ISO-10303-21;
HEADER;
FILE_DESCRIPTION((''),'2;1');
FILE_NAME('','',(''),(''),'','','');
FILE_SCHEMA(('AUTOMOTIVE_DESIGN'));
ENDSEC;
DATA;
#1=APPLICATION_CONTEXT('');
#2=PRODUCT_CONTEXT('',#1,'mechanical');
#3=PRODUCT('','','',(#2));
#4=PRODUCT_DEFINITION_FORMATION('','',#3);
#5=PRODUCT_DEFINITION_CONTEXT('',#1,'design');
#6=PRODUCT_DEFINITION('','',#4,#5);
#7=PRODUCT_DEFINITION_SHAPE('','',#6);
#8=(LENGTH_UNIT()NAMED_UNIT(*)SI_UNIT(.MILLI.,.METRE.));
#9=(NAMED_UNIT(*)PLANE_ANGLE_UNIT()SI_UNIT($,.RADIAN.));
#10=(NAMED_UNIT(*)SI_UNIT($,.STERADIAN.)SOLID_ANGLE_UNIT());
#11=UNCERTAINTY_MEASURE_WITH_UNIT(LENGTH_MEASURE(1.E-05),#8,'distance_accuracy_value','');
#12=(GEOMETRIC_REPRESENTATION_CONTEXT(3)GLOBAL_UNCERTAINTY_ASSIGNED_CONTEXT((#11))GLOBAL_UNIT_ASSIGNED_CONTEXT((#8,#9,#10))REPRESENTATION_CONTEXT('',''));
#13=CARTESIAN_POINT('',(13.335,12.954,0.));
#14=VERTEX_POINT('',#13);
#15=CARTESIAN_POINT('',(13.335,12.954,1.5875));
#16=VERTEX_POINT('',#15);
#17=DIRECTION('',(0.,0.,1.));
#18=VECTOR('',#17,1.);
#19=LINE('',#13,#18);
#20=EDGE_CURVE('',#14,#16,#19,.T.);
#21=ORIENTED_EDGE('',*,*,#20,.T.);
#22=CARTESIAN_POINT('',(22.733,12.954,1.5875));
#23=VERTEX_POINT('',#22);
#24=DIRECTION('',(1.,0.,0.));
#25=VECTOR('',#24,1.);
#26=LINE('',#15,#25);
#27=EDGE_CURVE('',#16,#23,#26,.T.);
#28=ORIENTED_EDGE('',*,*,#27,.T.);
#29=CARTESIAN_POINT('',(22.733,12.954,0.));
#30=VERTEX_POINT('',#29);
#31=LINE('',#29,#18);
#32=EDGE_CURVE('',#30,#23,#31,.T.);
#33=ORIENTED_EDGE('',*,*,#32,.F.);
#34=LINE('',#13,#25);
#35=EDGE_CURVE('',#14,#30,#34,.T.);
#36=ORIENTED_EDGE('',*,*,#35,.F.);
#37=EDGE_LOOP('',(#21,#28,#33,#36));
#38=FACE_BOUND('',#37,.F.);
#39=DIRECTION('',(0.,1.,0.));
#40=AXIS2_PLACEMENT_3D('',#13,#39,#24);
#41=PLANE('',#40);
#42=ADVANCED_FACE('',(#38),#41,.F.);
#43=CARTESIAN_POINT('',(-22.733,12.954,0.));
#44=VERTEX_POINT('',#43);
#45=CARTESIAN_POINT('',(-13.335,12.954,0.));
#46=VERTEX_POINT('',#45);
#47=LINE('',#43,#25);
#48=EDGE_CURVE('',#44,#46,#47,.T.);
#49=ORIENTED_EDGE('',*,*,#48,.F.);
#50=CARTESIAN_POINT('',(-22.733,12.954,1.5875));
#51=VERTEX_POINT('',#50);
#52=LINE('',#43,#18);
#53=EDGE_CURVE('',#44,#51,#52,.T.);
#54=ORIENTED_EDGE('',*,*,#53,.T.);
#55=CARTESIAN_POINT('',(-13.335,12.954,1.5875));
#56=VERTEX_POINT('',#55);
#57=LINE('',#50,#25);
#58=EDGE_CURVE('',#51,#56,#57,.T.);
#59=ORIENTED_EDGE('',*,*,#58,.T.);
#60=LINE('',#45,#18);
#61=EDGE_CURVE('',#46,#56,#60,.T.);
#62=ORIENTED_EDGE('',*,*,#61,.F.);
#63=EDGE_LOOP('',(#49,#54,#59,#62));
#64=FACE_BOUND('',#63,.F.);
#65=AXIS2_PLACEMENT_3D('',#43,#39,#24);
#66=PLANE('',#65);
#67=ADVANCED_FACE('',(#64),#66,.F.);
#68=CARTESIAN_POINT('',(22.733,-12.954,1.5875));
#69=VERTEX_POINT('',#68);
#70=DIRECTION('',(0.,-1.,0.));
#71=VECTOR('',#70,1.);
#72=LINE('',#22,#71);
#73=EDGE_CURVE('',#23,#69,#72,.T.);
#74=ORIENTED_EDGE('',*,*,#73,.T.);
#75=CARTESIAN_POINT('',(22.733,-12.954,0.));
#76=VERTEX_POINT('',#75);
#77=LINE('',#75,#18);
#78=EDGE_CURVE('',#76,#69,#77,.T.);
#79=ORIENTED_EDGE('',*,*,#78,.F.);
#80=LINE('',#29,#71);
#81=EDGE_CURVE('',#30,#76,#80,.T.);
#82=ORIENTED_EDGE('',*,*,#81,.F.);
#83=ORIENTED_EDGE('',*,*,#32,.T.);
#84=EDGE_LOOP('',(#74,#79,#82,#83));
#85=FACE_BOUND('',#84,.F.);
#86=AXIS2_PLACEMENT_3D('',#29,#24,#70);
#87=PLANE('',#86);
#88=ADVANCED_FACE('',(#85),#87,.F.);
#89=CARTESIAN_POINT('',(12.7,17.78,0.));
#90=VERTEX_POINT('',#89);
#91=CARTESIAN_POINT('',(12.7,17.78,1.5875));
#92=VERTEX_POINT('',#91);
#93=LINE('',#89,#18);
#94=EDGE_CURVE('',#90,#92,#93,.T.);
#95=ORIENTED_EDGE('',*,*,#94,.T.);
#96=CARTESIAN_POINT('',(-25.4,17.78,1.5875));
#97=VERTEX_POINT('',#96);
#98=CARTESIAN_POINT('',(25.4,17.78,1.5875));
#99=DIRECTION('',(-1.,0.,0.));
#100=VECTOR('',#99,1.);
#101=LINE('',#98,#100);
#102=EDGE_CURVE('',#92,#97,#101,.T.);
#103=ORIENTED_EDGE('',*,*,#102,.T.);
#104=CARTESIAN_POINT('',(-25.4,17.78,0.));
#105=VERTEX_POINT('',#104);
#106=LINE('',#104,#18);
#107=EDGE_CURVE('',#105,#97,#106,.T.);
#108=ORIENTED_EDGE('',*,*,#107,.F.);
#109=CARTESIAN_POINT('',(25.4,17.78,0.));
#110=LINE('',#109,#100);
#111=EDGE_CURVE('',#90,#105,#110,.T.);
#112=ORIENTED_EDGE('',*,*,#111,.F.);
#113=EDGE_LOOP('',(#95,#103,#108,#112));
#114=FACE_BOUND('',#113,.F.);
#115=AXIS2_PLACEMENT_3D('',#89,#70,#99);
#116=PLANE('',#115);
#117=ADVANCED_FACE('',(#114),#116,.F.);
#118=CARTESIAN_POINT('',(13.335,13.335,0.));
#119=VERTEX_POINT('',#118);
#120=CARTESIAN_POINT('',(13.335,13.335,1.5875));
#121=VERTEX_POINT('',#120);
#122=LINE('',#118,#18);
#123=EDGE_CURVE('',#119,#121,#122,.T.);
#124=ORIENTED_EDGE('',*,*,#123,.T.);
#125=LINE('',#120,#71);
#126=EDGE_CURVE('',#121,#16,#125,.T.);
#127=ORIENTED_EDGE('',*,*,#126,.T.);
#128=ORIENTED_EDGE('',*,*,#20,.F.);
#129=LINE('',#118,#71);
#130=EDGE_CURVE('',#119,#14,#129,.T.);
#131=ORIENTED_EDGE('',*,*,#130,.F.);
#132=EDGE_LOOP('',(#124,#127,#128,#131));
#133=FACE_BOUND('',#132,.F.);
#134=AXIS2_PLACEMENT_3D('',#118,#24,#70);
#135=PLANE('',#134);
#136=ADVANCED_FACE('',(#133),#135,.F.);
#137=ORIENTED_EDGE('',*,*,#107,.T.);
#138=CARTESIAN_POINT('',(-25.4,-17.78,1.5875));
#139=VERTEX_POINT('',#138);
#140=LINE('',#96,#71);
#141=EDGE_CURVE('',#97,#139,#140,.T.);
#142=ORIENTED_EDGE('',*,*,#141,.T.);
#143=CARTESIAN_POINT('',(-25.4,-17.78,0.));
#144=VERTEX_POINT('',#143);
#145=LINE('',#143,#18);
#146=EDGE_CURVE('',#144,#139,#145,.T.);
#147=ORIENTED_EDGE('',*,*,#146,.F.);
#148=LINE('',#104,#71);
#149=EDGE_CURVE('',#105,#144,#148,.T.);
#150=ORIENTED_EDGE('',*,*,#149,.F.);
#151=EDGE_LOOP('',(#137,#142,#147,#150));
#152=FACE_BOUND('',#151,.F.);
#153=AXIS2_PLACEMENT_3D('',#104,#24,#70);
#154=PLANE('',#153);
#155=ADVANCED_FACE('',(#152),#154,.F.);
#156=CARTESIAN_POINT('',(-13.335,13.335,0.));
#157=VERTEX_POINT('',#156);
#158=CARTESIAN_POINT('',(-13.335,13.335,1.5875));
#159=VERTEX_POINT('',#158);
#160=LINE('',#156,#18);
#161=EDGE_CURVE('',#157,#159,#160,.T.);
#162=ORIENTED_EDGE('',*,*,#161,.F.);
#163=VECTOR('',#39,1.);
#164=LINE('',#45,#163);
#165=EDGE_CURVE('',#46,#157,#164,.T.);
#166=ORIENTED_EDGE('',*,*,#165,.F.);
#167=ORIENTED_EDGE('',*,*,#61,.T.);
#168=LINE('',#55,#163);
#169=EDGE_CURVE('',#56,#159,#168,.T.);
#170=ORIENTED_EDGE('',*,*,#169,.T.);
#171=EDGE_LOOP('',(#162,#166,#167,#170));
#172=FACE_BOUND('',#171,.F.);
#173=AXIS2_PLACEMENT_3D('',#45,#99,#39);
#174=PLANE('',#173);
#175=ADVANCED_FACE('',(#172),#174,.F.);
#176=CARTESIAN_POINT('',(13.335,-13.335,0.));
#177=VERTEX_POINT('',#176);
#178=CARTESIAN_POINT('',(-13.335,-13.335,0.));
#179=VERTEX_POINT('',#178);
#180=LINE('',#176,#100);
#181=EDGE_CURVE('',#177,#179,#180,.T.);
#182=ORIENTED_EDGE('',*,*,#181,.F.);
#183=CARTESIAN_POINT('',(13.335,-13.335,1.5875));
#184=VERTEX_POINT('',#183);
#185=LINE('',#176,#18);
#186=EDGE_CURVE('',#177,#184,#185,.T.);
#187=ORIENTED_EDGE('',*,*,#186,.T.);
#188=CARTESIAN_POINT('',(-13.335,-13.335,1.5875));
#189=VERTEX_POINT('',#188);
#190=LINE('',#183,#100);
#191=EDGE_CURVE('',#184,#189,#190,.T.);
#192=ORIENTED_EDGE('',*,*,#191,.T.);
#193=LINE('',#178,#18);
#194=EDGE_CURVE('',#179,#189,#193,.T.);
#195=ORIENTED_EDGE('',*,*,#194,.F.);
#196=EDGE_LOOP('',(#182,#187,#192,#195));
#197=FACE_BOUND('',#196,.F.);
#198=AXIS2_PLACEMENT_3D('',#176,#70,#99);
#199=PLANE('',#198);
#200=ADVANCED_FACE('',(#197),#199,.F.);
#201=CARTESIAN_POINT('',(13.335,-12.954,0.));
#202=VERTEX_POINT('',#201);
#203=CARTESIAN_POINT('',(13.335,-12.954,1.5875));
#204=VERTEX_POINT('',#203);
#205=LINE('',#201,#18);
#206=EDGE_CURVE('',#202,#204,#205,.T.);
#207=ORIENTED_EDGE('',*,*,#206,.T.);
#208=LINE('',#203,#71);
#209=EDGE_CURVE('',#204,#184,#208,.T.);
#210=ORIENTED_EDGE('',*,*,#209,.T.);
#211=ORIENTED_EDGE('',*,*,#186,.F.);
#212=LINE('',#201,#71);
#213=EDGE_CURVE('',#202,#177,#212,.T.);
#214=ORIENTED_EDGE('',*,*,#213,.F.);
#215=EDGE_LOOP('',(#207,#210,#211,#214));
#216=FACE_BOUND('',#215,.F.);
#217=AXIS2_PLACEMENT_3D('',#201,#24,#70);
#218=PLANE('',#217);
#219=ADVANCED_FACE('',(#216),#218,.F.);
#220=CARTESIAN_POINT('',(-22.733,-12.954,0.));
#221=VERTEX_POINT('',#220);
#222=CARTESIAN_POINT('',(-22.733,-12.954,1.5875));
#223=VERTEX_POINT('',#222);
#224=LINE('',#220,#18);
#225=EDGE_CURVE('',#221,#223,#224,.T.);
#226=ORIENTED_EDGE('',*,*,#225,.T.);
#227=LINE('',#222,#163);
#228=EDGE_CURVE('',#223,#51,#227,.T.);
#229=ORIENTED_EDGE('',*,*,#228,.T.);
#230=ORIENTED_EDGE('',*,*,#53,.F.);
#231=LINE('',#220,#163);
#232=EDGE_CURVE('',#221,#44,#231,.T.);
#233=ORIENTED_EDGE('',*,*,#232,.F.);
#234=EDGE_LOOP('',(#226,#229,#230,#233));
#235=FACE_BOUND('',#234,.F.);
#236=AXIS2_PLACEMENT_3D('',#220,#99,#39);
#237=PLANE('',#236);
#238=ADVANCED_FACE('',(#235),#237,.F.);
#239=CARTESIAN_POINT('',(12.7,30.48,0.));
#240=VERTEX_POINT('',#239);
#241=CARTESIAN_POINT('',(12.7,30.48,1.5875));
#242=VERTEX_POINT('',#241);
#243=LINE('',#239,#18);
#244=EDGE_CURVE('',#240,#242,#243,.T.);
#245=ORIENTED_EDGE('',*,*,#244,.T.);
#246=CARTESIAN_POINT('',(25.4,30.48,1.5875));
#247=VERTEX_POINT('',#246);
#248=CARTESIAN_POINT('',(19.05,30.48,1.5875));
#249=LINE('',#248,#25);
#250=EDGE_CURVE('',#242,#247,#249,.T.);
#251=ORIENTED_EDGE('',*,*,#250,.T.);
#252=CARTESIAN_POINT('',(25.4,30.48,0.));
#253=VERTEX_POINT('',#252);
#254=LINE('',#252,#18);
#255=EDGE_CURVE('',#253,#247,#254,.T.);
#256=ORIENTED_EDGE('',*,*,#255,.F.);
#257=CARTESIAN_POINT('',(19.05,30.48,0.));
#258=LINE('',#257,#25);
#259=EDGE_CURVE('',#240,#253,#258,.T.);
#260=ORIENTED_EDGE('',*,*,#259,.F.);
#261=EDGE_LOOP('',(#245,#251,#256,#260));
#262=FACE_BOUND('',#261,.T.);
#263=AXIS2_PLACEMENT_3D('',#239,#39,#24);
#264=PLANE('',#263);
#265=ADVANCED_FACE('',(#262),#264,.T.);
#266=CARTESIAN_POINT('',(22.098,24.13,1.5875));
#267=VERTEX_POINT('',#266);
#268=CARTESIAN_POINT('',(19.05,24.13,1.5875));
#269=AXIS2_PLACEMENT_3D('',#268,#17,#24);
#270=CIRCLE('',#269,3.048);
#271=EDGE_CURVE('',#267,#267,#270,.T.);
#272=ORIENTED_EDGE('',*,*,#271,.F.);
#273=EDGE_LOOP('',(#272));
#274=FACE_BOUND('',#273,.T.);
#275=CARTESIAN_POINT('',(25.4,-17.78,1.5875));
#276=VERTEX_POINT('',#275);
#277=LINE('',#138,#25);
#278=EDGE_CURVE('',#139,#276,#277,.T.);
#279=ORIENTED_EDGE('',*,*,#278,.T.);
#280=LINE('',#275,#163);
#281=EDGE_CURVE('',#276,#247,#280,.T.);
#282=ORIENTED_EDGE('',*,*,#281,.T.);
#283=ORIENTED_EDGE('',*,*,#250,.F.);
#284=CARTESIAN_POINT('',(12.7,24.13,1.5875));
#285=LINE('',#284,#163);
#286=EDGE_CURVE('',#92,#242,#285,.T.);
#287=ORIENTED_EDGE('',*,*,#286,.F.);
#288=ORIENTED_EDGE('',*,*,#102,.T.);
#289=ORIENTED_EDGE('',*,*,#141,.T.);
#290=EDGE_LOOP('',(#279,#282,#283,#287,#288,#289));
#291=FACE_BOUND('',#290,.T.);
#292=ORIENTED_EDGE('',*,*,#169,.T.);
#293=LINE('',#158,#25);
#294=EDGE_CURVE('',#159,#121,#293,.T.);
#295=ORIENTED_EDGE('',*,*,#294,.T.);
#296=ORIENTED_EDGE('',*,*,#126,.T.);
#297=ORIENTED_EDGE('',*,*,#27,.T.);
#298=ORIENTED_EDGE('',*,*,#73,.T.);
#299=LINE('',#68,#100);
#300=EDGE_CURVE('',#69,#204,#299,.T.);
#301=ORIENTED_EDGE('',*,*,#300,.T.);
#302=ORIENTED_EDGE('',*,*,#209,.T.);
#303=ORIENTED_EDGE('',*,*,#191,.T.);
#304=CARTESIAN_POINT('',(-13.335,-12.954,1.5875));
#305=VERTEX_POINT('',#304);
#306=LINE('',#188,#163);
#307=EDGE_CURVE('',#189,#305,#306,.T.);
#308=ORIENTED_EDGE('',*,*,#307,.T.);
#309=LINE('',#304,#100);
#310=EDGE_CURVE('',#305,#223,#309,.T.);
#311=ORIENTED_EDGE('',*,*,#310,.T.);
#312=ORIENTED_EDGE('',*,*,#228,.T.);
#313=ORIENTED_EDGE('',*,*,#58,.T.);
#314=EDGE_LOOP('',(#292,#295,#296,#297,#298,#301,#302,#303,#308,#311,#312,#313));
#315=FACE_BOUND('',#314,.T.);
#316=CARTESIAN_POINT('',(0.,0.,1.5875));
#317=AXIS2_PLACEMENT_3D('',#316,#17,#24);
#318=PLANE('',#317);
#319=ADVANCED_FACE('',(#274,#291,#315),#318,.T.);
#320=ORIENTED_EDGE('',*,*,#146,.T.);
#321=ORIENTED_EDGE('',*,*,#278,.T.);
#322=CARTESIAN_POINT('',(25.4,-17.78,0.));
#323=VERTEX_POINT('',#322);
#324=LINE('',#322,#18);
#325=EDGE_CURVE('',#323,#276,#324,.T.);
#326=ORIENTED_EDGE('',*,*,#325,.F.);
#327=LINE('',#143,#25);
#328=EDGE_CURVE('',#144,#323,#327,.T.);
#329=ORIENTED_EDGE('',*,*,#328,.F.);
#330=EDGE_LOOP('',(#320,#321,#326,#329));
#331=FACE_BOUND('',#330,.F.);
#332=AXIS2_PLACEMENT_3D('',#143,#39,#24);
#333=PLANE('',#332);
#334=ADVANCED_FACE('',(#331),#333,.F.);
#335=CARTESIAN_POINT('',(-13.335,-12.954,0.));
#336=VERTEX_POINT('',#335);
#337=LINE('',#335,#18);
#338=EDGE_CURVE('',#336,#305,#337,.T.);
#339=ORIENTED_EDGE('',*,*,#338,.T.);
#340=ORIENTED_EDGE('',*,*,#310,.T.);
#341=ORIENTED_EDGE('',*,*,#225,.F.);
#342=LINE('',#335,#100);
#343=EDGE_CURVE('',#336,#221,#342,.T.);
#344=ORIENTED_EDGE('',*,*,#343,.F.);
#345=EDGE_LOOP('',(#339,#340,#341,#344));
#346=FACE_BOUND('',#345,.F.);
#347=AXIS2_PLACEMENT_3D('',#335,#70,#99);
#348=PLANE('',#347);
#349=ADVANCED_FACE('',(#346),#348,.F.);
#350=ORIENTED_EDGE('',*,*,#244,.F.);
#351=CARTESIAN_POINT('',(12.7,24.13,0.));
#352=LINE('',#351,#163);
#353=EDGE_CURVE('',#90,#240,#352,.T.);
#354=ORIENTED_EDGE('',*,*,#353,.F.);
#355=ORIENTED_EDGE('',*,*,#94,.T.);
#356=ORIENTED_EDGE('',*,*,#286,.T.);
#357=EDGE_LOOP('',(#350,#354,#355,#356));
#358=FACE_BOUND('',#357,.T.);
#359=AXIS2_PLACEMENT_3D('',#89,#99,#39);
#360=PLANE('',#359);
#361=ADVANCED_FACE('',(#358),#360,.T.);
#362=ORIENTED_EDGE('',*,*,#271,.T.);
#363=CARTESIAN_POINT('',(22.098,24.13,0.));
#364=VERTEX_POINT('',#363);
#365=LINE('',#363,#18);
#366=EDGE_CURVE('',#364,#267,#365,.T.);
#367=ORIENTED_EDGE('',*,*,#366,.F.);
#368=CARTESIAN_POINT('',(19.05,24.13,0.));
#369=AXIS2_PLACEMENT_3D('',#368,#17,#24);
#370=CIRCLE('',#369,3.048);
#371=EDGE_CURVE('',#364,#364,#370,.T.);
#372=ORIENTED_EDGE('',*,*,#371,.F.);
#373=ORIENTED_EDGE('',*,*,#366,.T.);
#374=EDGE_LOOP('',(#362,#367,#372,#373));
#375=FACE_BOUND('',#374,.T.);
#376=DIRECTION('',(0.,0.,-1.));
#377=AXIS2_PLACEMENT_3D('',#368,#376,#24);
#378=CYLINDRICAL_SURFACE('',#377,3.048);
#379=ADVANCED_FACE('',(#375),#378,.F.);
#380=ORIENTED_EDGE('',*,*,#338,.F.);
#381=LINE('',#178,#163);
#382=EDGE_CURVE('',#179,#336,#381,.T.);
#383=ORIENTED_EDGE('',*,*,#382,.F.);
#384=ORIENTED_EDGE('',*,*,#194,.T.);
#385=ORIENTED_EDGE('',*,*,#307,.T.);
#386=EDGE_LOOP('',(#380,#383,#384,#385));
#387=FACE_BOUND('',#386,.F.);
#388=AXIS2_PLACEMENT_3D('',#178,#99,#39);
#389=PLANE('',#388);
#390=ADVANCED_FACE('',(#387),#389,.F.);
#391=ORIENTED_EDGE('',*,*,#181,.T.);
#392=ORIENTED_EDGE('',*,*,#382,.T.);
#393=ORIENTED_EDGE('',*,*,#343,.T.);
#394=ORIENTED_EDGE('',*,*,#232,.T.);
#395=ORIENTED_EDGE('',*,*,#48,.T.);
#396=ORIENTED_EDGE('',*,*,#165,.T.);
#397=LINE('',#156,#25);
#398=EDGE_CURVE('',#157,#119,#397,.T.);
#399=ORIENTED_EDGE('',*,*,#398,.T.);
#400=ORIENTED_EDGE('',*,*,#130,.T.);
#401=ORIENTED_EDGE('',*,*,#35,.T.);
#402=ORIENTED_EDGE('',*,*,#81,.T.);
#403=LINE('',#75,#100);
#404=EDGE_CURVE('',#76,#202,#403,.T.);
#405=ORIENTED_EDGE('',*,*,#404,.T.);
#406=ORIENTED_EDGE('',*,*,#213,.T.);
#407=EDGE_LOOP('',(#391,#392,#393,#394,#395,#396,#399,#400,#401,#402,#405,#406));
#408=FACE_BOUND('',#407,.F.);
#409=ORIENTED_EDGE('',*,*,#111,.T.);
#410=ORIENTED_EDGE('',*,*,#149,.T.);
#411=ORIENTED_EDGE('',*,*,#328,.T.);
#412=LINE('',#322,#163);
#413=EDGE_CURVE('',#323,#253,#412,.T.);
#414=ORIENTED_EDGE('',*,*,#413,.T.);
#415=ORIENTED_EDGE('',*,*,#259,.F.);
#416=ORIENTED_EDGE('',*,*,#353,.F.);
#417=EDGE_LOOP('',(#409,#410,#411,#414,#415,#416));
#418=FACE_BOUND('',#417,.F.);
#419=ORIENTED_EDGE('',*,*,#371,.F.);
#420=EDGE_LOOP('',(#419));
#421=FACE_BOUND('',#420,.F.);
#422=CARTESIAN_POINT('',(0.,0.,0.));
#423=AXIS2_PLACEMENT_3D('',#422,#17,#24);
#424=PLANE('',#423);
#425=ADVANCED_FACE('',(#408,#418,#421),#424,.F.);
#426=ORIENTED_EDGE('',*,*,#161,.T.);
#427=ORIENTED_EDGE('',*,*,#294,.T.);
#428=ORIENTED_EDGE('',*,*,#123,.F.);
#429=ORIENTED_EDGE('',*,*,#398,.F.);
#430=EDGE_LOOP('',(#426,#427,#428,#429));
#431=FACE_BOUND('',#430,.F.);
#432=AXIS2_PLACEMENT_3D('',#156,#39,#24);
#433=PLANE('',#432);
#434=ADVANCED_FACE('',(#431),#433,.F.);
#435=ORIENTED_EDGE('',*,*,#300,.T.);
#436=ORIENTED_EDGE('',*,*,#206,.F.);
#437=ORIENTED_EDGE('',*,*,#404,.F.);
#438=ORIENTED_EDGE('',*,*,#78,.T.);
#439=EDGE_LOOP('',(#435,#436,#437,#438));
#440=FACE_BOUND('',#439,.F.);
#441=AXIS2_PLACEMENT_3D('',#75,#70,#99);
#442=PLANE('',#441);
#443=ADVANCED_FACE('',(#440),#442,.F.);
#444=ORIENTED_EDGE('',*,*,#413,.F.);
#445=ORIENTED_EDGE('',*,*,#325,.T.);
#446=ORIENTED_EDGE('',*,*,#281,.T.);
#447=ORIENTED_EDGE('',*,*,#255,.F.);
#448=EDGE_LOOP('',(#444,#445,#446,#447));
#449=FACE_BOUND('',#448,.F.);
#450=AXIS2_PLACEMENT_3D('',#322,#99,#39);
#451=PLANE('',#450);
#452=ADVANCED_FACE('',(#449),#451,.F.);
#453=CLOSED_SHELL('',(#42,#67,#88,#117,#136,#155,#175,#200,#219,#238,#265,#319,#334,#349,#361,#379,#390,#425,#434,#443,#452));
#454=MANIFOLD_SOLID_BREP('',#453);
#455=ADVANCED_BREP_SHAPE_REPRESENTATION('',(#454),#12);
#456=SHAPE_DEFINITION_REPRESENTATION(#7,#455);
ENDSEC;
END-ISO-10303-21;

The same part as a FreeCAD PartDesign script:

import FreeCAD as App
import Part
import Sketcher

V = App.Vector
Q = App.Units.Quantity


def add_polygon(sketch, points):
    """Adds a closed chain of lines whose ends are joined by coincident constraints."""
    first, n = sketch.GeometryCount, len(points)
    for a, b in zip(points, points[1:] + points[:1]):
        sketch.addGeometry(Part.LineSegment(App.Vector(*a, 0), App.Vector(*b, 0)), False)
    for i in range(n):
        sketch.addConstraint(Sketcher.Constraint("Coincident", first + i, 2, first + (i + 1) % n, 1))

doc = App.newDocument("Part")
body = doc.addObject("PartDesign::Body", "Body")

# Sketch on XY plane
sketch1 = body.newObject("Sketcher::SketchObject", "Sketch")
sketch1.AttachmentSupport = (doc.getObject("XY_Plane"), [""])
sketch1.MapMode = "FlatFace"
add_polygon(sketch1, [(-25.4, -17.78), (25.4, -17.78), (25.4, 30.48), (12.7, 30.48), (12.7, 17.78), (-25.4, 17.78)])  # lines 0-5
add_polygon(sketch1, [(13.34, 12.95), (22.73, 12.95), (22.73, -12.95), (13.34, -12.95), (13.34, -13.34), (-13.34, -13.34), (-13.34, -12.95), (-22.73, -12.95), (-22.73, 12.95), (-13.34, 12.95), (-13.34, 13.34), (13.34, 13.34)])  # lines 6-17
sketch1.addGeometry(Part.Circle(V(19.05, 24.13, 0), V(0, 0, 1), 3.05), False)  # 18
sketch1.addConstraint([
    Sketcher.Constraint("Horizontal", 0),
    Sketcher.Constraint("Vertical", 1),
    Sketcher.Constraint("Horizontal", 2),
    Sketcher.Constraint("Vertical", 3),
    Sketcher.Constraint("Horizontal", 4),
    Sketcher.Constraint("Vertical", 5),
    Sketcher.Constraint("Horizontal", 6),
    Sketcher.Constraint("Vertical", 7),
    Sketcher.Constraint("Horizontal", 8),
    Sketcher.Constraint("Vertical", 9),
    Sketcher.Constraint("Horizontal", 10),
    Sketcher.Constraint("Vertical", 11),
    Sketcher.Constraint("Horizontal", 12),
    Sketcher.Constraint("Vertical", 13),
    Sketcher.Constraint("Horizontal", 14),
    Sketcher.Constraint("Vertical", 15),
    Sketcher.Constraint("Horizontal", 16),
    Sketcher.Constraint("Vertical", 17),
    Sketcher.Constraint("Symmetric", 0, 2, 4, 2, -1, 1),
    Sketcher.Constraint("Symmetric", 6, 2, 12, 2, -1, 1),
    Sketcher.Constraint("Symmetric", 8, 2, 14, 2, -1, 1),
    Sketcher.Constraint("Symmetric", 10, 2, 16, 2, -1, 1),
    Sketcher.Constraint("Symmetric", 8, 2, 11, 2, -2),
    Sketcher.Constraint("Equal", 2, 3),
    Sketcher.Constraint("Diameter", 18, Q("0.24 in")),
    Sketcher.Constraint("DistanceX", 0, 1, 0, 2, Q("2 in")),
    Sketcher.Constraint("DistanceX", 2, 2, 2, 1, Q("0.5 in")),
    Sketcher.Constraint("DistanceY", 1, 1, 1, 2, Q("1.9 in")),
    Sketcher.Constraint("DistanceX", 6, 1, 6, 2, Q("0.37 in")),
    Sketcher.Constraint("DistanceX", 10, 2, 10, 1, Q("1.05 in")),
    Sketcher.Constraint("DistanceY", 7, 2, 7, 1, Q("1.02 in")),
    Sketcher.Constraint("DistanceY", 9, 2, 9, 1, Q("0.015 in")),
    Sketcher.Constraint("DistanceX", -1, 1, 18, 3, Q("0.75 in")),
    Sketcher.Constraint("DistanceY", -1, 1, 18, 3, Q("0.95 in")),
])
pad1 = body.newObject("PartDesign::Pad", "Pad")
pad1.Profile = sketch1
pad1.Length = Q("0.0625 in")

doc.recompute()
